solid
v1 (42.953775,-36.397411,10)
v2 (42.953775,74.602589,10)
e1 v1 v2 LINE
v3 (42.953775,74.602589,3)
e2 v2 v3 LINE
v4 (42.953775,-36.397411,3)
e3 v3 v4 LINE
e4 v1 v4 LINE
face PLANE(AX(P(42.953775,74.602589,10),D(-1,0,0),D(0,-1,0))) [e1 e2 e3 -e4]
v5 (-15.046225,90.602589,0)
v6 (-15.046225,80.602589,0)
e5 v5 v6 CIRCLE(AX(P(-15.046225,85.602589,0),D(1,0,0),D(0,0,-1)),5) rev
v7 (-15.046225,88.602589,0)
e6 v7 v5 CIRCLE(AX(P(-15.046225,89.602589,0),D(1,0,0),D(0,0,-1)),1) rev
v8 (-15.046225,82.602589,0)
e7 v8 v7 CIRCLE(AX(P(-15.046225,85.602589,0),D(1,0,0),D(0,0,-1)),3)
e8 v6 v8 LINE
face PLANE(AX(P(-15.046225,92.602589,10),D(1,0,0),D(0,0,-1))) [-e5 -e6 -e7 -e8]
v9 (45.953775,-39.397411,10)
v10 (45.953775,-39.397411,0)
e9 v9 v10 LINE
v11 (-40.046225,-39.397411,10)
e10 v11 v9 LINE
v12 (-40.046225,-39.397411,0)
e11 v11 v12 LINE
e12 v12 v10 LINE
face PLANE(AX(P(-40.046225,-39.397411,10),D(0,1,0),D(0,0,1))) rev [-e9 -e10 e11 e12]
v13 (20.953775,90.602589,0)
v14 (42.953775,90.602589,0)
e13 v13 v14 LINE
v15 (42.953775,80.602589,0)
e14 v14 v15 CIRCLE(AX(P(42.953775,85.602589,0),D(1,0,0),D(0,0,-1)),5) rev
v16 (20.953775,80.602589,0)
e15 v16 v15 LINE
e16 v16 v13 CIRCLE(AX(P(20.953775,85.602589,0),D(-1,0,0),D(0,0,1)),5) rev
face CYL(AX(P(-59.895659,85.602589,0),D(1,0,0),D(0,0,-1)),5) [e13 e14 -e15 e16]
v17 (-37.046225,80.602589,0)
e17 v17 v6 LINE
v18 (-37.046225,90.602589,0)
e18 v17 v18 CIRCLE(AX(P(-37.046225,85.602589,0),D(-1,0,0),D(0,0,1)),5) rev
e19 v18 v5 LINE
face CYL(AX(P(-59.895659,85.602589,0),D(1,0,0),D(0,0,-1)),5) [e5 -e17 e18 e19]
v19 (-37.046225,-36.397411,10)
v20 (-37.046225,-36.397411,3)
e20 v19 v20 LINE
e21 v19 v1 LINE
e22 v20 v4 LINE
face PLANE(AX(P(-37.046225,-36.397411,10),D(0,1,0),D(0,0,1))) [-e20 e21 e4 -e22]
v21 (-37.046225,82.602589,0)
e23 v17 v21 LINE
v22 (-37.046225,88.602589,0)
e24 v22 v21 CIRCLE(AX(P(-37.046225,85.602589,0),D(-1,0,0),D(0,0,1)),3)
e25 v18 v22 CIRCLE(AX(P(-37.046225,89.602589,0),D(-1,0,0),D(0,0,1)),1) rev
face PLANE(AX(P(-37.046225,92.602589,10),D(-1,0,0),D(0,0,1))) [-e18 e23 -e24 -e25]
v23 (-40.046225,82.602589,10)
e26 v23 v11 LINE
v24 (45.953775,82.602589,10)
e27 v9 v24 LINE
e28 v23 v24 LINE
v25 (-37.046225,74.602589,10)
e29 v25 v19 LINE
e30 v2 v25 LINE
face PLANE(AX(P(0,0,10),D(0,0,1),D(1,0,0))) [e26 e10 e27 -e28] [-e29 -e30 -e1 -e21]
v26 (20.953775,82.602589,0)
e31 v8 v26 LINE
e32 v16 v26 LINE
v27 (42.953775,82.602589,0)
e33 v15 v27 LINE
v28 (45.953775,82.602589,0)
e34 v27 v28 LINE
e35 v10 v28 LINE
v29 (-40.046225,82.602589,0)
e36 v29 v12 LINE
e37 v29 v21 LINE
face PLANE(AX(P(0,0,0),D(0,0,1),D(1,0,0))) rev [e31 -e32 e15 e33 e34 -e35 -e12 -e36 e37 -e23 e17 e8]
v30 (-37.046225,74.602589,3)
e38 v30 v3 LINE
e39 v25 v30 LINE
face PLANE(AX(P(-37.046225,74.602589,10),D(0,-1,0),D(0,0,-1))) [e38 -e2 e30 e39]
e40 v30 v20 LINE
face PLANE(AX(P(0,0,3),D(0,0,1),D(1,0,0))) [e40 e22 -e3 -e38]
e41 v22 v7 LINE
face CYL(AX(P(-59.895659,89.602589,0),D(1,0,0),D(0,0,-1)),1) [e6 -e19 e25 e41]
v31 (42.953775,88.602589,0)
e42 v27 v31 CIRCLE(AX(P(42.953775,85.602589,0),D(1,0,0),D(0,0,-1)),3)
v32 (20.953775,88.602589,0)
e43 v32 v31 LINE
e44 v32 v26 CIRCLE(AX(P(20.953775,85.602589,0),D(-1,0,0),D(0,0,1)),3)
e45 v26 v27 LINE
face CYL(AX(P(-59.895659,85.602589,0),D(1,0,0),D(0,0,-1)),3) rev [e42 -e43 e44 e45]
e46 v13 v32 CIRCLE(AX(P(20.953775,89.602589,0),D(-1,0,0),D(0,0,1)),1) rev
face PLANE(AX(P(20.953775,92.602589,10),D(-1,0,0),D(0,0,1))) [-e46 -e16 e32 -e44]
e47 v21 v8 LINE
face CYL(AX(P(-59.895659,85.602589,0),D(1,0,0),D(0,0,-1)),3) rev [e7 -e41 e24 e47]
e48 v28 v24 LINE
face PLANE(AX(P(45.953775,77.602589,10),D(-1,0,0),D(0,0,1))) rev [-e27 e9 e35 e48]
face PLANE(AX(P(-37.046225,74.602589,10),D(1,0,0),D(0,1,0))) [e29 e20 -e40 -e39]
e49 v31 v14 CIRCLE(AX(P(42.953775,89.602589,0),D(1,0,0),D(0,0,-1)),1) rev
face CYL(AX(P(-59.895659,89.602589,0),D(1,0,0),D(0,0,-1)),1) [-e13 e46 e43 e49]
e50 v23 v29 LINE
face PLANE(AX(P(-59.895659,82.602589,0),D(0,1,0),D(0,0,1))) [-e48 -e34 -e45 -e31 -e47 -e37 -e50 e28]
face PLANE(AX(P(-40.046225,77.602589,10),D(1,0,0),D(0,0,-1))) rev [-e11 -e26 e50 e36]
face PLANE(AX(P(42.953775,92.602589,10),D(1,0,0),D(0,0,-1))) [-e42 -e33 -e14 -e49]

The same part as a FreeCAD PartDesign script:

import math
import FreeCAD as App
import Part
import Sketcher
Q = App.Units.Quantity

doc = App.newDocument("Part")
body = doc.addObject("PartDesign::Body", "Body")

# Sketch on XY plane
sketch1 = body.newObject("Sketcher::SketchObject", "Sketch")
sketch1.AttachmentSupport = (doc.getObject("XY_Plane"), [""])
sketch1.MapMode = "FlatFace"
sketch1.addGeometry(Part.LineSegment(App.Vector(-40.046225, 77.602589, 0), App.Vector(-40.046225, -39.397411, 0)), False)
sketch1.addGeometry(Part.LineSegment(App.Vector(-40.046225, -39.397411, 0), App.Vector(45.953775, -39.397411, 0)), False)
sketch1.addGeometry(Part.LineSegment(App.Vector(45.953775, -39.397411, 0), App.Vector(45.953775, 77.602589, 0)), False)
sketch1.addGeometry(Part.LineSegment(App.Vector(45.953775, 77.602589, 0), App.Vector(-40.046225, 77.602589, 0)), False)
sketch1.addGeometry(Part.LineSegment(App.Vector(42.953775, -36.397411, 0), App.Vector(-37.046225, -36.397411, 0)), False)
sketch1.addGeometry(Part.LineSegment(App.Vector(-37.046225, -36.397411, 0), App.Vector(-37.046225, 74.602589, 0)), False)
sketch1.addGeometry(Part.LineSegment(App.Vector(-37.046225, 74.602589, 0), App.Vector(42.953775, 74.602589, 0)), False)
sketch1.addGeometry(Part.LineSegment(App.Vector(42.953775, 74.602589, 0), App.Vector(42.953775, -36.397411, 0)), False)
sketch1.addConstraint(Sketcher.Constraint("Coincident", 0, 2, 1, 1))
sketch1.addConstraint(Sketcher.Constraint("Coincident", 1, 2, 2, 1))
sketch1.addConstraint(Sketcher.Constraint("Coincident", 2, 2, 3, 1))
sketch1.addConstraint(Sketcher.Constraint("Coincident", 3, 2, 0, 1))
sketch1.addConstraint(Sketcher.Constraint("Coincident", 4, 2, 5, 1))
sketch1.addConstraint(Sketcher.Constraint("Coincident", 5, 2, 6, 1))
sketch1.addConstraint(Sketcher.Constraint("Coincident", 6, 2, 7, 1))
sketch1.addConstraint(Sketcher.Constraint("Coincident", 7, 2, 4, 1))
sketch1.addConstraint(Sketcher.Constraint("Vertical", 0))
sketch1.addConstraint(Sketcher.Constraint("Horizontal", 1))
sketch1.addConstraint(Sketcher.Constraint("Vertical", 2))
sketch1.addConstraint(Sketcher.Constraint("Horizontal", 3))
sketch1.addConstraint(Sketcher.Constraint("Horizontal", 4))
sketch1.addConstraint(Sketcher.Constraint("Vertical", 5))
sketch1.addConstraint(Sketcher.Constraint("Horizontal", 6))
sketch1.addConstraint(Sketcher.Constraint("Vertical", 7))
sketch1.addConstraint(Sketcher.Constraint("DistanceX", 1, 1, 1, 2, Q("86 mm")))
sketch1.addConstraint(Sketcher.Constraint("DistanceX", 4, 2, 4, 1, Q("80 mm")))
sketch1.addConstraint(Sketcher.Constraint("DistanceY", 0, 2, 0, 1, Q("117 mm")))
sketch1.addConstraint(Sketcher.Constraint("DistanceY", 5, 1, 5, 2, Q("111 mm")))
sketch1.addConstraint(Sketcher.Constraint("DistanceX", 0, 2, 4, 2, Q("3 mm")))
sketch1.addConstraint(Sketcher.Constraint("DistanceY", 0, 2, 4, 2, Q("3 mm")))
sketch1.addConstraint(Sketcher.Constraint("DistanceY", 0, 2, -1, 1, Q("39.397411 mm")))
sketch1.addConstraint(Sketcher.Constraint("DistanceX", 0, 2, -1, 1, Q("40.046225 mm")))
pad1 = body.newObject("PartDesign::Pad", "Pad")
pad1.Profile = sketch1
pad1.Length = 10

# Sketch on XY plane
sketch2 = body.newObject("Sketcher::SketchObject", "Sketch001")
sketch2.AttachmentSupport = (doc.getObject("XY_Plane"), [""])
sketch2.MapMode = "FlatFace"
sketch2.addGeometry(Part.LineSegment(App.Vector(-37.046225, 74.602589, 0), App.Vector(-37.046225, -36.397411, 0)), False)
sketch2.addGeometry(Part.LineSegment(App.Vector(-37.046225, -36.397411, 0), App.Vector(42.953775, -36.397411, 0)), False)
sketch2.addGeometry(Part.LineSegment(App.Vector(42.953775, -36.397411, 0), App.Vector(42.953775, 74.602589, 0)), False)
sketch2.addGeometry(Part.LineSegment(App.Vector(42.953775, 74.602589, 0), App.Vector(-37.046225, 74.602589, 0)), False)
sketch2.addConstraint(Sketcher.Constraint("Coincident", 0, 2, 1, 1))
sketch2.addConstraint(Sketcher.Constraint("Coincident", 1, 2, 2, 1))
sketch2.addConstraint(Sketcher.Constraint("Coincident", 2, 2, 3, 1))
sketch2.addConstraint(Sketcher.Constraint("Coincident", 3, 2, 0, 1))
sketch2.addConstraint(Sketcher.Constraint("Vertical", 0))
sketch2.addConstraint(Sketcher.Constraint("Horizontal", 1))
sketch2.addConstraint(Sketcher.Constraint("Vertical", 2))
sketch2.addConstraint(Sketcher.Constraint("Horizontal", 3))
sketch2.addConstraint(Sketcher.Constraint("DistanceX", 1, 1, 1, 2, Q("80 mm")))
sketch2.addConstraint(Sketcher.Constraint("DistanceY", 0, 2, 0, 1, Q("111 mm")))
sketch2.addConstraint(Sketcher.Constraint("DistanceY", 0, 2, -1, 1, Q("36.397411 mm")))
sketch2.addConstraint(Sketcher.Constraint("DistanceX", 0, 2, -1, 1, Q("37.046225 mm")))
pad2 = body.newObject("PartDesign::Pad", "Pad001")
pad2.Profile = sketch2
pad2.Length = 3

# Sketch on YZ plane
sketch3 = body.newObject("Sketcher::SketchObject", "Sketch002")
sketch3.AttachmentSupport = (doc.getObject("YZ_Plane"), [""])
sketch3.MapMode = "FlatFace"
sketch3.AttachmentOffset = App.Placement(App.Vector(0, 0, 45.953775), App.Rotation())
sketch3.addGeometry(Part.LineSegment(App.Vector(77.602589, 10, 0), App.Vector(77.602589, 0, 0)), False)
sketch3.addGeometry(Part.LineSegment(App.Vector(77.602589, 0, 0), App.Vector(80.602589, 0, 0)), False)
sketch3.addGeometry(Part.ArcOfCircle(Part.Circle(App.Vector(85.602589, 0, 0), App.Vector(0, 0, 1), 5), math.radians(180), math.radians(360)), False)
sketch3.addGeometry(Part.ArcOfCircle(Part.Circle(App.Vector(89.602589, 0, 0), App.Vector(0, 0, 1), 1), math.radians(0), math.radians(180)), False)
sketch3.addGeometry(Part.ArcOfCircle(Part.Circle(App.Vector(85.602589, 0, 0), App.Vector(0, 0, 1), 3), math.radians(180), math.radians(360)), False)
sketch3.addGeometry(Part.LineSegment(App.Vector(82.602589, 0, 0), App.Vector(82.602589, 10, 0)), False)
sketch3.addGeometry(Part.LineSegment(App.Vector(82.602589, 10, 0), App.Vector(77.602589, 10, 0)), False)
sketch3.addConstraint(Sketcher.Constraint("Coincident", 0, 2, 1, 1))
sketch3.addConstraint(Sketcher.Constraint("Coincident", 1, 2, 2, 1))
sketch3.addConstraint(Sketcher.Constraint("Tangent", 2, 2, 3, 1))
sketch3.addConstraint(Sketcher.Constraint("Tangent", 3, 2, 4, 2))
sketch3.addConstraint(Sketcher.Constraint("Tangent", 4, 1, 5, 1))
sketch3.addConstraint(Sketcher.Constraint("Coincident", 5, 2, 6, 1))
sketch3.addConstraint(Sketcher.Constraint("Coincident", 6, 2, 0, 1))
sketch3.addConstraint(Sketcher.Constraint("Vertical", 0))
sketch3.addConstraint(Sketcher.Constraint("Horizontal", 1))
sketch3.addConstraint(Sketcher.Constraint("Vertical", 5))
sketch3.addConstraint(Sketcher.Constraint("Horizontal", 6))
sketch3.addConstraint(Sketcher.Constraint("Coincident", 4, 3, 2, 3))
sketch3.addConstraint(Sketcher.Constraint("PointOnObject", 2, 3, -1))
sketch3.addConstraint(Sketcher.Constraint("PointOnObject", 3, 3, -1))
sketch3.addConstraint(Sketcher.Constraint("PointOnObject", 0, 2, -1))
sketch3.addConstraint(Sketcher.Constraint("Radius", 2, Q("5 mm")))
sketch3.addConstraint(Sketcher.Constraint("Radius", 3, Q("1 mm")))
sketch3.addConstraint(Sketcher.Constraint("DistanceX", 1, 1, 1, 2, Q("3 mm")))
sketch3.addConstraint(Sketcher.Constraint("DistanceY", 0, 2, 0, 1, Q("10 mm")))
sketch3.addConstraint(Sketcher.Constraint("DistanceX", -1, 1, 2, 3, Q("85.602589 mm")))
pad3 = body.newObject("PartDesign::Pad", "Pad002")
pad3.Profile = sketch3
pad3.Length = 86
pad3.Reversed = True

# Sketch on XZ plane
sketch4 = body.newObject("Sketcher::SketchObject", "Sketch003")
sketch4.AttachmentSupport = (doc.getObject("XZ_Plane"), [""])
sketch4.MapMode = "FlatFace"
sketch4.AttachmentOffset = App.Placement(App.Vector(0, 0, -82.602589), App.Rotation())
sketch4.addGeometry(Part.LineSegment(App.Vector(-40.046225, -5, 0), App.Vector(-40.046225, 10, 0)), False)
sketch4.addGeometry(Part.LineSegment(App.Vector(-40.046225, 10, 0), App.Vector(-37.046225, 10, 0)), False)
sketch4.addGeometry(Part.LineSegment(App.Vector(-37.046225, 10, 0), App.Vector(-37.046225, -5, 0)), False)
sketch4.addGeometry(Part.LineSegment(App.Vector(-37.046225, -5, 0), App.Vector(-40.046225, -5, 0)), False)
sketch4.addGeometry(Part.LineSegment(App.Vector(-15.046225, -5, 0), App.Vector(-15.046225, 10, 0)), False)
sketch4.addGeometry(Part.LineSegment(App.Vector(-15.046225, 10, 0), App.Vector(20.953775, 10, 0)), False)
sketch4.addGeometry(Part.LineSegment(App.Vector(20.953775, 10, 0), App.Vector(20.953775, -5, 0)), False)
sketch4.addGeometry(Part.LineSegment(App.Vector(20.953775, -5, 0), App.Vector(-15.046225, -5, 0)), False)
sketch4.addGeometry(Part.LineSegment(App.Vector(42.953775, -5, 0), App.Vector(42.953775, 10, 0)), False)
sketch4.addGeometry(Part.LineSegment(App.Vector(42.953775, 10, 0), App.Vector(45.953775, 10, 0)), False)
sketch4.addGeometry(Part.LineSegment(App.Vector(45.953775, 10, 0), App.Vector(45.953775, -5, 0)), False)
sketch4.addGeometry(Part.LineSegment(App.Vector(45.953775, -5, 0), App.Vector(42.953775, -5, 0)), False)
sketch4.addConstraint(Sketcher.Constraint("Coincident", 0, 2, 1, 1))
sketch4.addConstraint(Sketcher.Constraint("Coincident", 1, 2, 2, 1))
sketch4.addConstraint(Sketcher.Constraint("Coincident", 2, 2, 3, 1))
sketch4.addConstraint(Sketcher.Constraint("Coincident", 3, 2, 0, 1))
sketch4.addConstraint(Sketcher.Constraint("Coincident", 4, 2, 5, 1))
sketch4.addConstraint(Sketcher.Constraint("Coincident", 5, 2, 6, 1))
sketch4.addConstraint(Sketcher.Constraint("Coincident", 6, 2, 7, 1))
sketch4.addConstraint(Sketcher.Constraint("Coincident", 7, 2, 4, 1))
sketch4.addConstraint(Sketcher.Constraint("Coincident", 8, 2, 9, 1))
sketch4.addConstraint(Sketcher.Constraint("Coincident", 9, 2, 10, 1))
sketch4.addConstraint(Sketcher.Constraint("Coincident", 10, 2, 11, 1))
sketch4.addConstraint(Sketcher.Constraint("Coincident", 11, 2, 8, 1))
sketch4.addConstraint(Sketcher.Constraint("Vertical", 0))
sketch4.addConstraint(Sketcher.Constraint("Horizontal", 1))
sketch4.addConstraint(Sketcher.Constraint("Vertical", 2))
sketch4.addConstraint(Sketcher.Constraint("Horizontal", 3))
sketch4.addConstraint(Sketcher.Constraint("Vertical", 4))
sketch4.addConstraint(Sketcher.Constraint("Horizontal", 5))
sketch4.addConstraint(Sketcher.Constraint("Vertical", 6))
sketch4.addConstraint(Sketcher.Constraint("Horizontal", 7))
sketch4.addConstraint(Sketcher.Constraint("Vertical", 8))
sketch4.addConstraint(Sketcher.Constraint("Horizontal", 9))
sketch4.addConstraint(Sketcher.Constraint("Vertical", 10))
sketch4.addConstraint(Sketcher.Constraint("Horizontal", 11))
sketch4.addConstraint(Sketcher.Constraint("Horizontal", 1, 2, 4, 2))
sketch4.addConstraint(Sketcher.Constraint("Horizontal", 3, 2, 6, 2))
sketch4.addConstraint(Sketcher.Constraint("Horizontal", 5, 2, 8, 2))
sketch4.addConstraint(Sketcher.Constraint("Horizontal", 7, 2, 10, 2))
sketch4.addConstraint(Sketcher.Constraint("Equal", 3, 9))
sketch4.addConstraint(Sketcher.Constraint("DistanceX", 1, 1, 1, 2, Q("3 mm")))
sketch4.addConstraint(Sketcher.Constraint("DistanceX", 5, 1, 5, 2, Q("36 mm")))
sketch4.addConstraint(Sketcher.Constraint("DistanceY", 0, 1, 0, 2, Q("15 mm")))
sketch4.addConstraint(Sketcher.Constraint("DistanceY", -1, 1, 0, 2, Q("10 mm")))
sketch4.addConstraint(Sketcher.Constraint("DistanceX", 1, 2, 4, 2, Q("22 mm")))
sketch4.addConstraint(Sketcher.Constraint("DistanceX", 5, 2, 8, 2, Q("22 mm")))
sketch4.addConstraint(Sketcher.Constraint("DistanceX", 0, 2, -1, 1, Q("40.046225 mm")))
pocket1 = body.newObject("PartDesign::Pocket", "Pocket")
pocket1.Profile = sketch4
pocket1.Length = 10

# Sketch on XZ plane
sketch5 = body.newObject("Sketcher::SketchObject", "Sketch004")
sketch5.AttachmentSupport = (doc.getObject("XZ_Plane"), [""])
sketch5.MapMode = "FlatFace"
sketch5.AttachmentOffset = App.Placement(App.Vector(0, 0, -82.602589), App.Rotation())
sketch5.addGeometry(Part.LineSegment(App.Vector(-40.046225, -5, 0), App.Vector(-40.046225, 0, 0)), False)
sketch5.addGeometry(Part.LineSegment(App.Vector(-40.046225, 0, 0), App.Vector(-37.046225, 0, 0)), False)
sketch5.addGeometry(Part.LineSegment(App.Vector(-37.046225, 0, 0), App.Vector(-37.046225, -5, 0)), False)
sketch5.addGeometry(Part.LineSegment(App.Vector(-37.046225, -5, 0), App.Vector(-40.046225, -5, 0)), False)
sketch5.addGeometry(Part.LineSegment(App.Vector(42.953775, -5, 0), App.Vector(42.953775, 0, 0)), False)
sketch5.addGeometry(Part.LineSegment(App.Vector(42.953775, 0, 0), App.Vector(45.953775, 0, 0)), False)
sketch5.addGeometry(Part.LineSegment(App.Vector(45.953775, 0, 0), App.Vector(45.953775, -5, 0)), False)
sketch5.addGeometry(Part.LineSegment(App.Vector(45.953775, -5, 0), App.Vector(42.953775, -5, 0)), False)
sketch5.addGeometry(Part.LineSegment(App.Vector(-15.046225, -5, 0), App.Vector(-15.046225, 0, 0)), False)
sketch5.addGeometry(Part.LineSegment(App.Vector(-15.046225, 0, 0), App.Vector(20.953775, 0, 0)), False)
sketch5.addGeometry(Part.LineSegment(App.Vector(20.953775, 0, 0), App.Vector(20.953775, -5, 0)), False)
sketch5.addGeometry(Part.LineSegment(App.Vector(20.953775, -5, 0), App.Vector(-15.046225, -5, 0)), False)
sketch5.addConstraint(Sketcher.Constraint("Coincident", 0, 2, 1, 1))
sketch5.addConstraint(Sketcher.Constraint("Coincident", 1, 2, 2, 1))
sketch5.addConstraint(Sketcher.Constraint("Coincident", 2, 2, 3, 1))
sketch5.addConstraint(Sketcher.Constraint("Coincident", 3, 2, 0, 1))
sketch5.addConstraint(Sketcher.Constraint("Coincident", 4, 2, 5, 1))
sketch5.addConstraint(Sketcher.Constraint("Coincident", 5, 2, 6, 1))
sketch5.addConstraint(Sketcher.Constraint("Coincident", 6, 2, 7, 1))
sketch5.addConstraint(Sketcher.Constraint("Coincident", 7, 2, 4, 1))
sketch5.addConstraint(Sketcher.Constraint("Coincident", 8, 2, 9, 1))
sketch5.addConstraint(Sketcher.Constraint("Coincident", 9, 2, 10, 1))
sketch5.addConstraint(Sketcher.Constraint("Coincident", 10, 2, 11, 1))
sketch5.addConstraint(Sketcher.Constraint("Coincident", 11, 2, 8, 1))
sketch5.addConstraint(Sketcher.Constraint("Vertical", 0))
sketch5.addConstraint(Sketcher.Constraint("Horizontal", 1))
sketch5.addConstraint(Sketcher.Constraint("Vertical", 2))
sketch5.addConstraint(Sketcher.Constraint("Horizontal", 3))
sketch5.addConstraint(Sketcher.Constraint("Vertical", 4))
sketch5.addConstraint(Sketcher.Constraint("Horizontal", 5))
sketch5.addConstraint(Sketcher.Constraint("Vertical", 6))
sketch5.addConstraint(Sketcher.Constraint("Horizontal", 7))
sketch5.addConstraint(Sketcher.Constraint("Vertical", 8))
sketch5.addConstraint(Sketcher.Constraint("Horizontal", 9))
sketch5.addConstraint(Sketcher.Constraint("Vertical", 10))
sketch5.addConstraint(Sketcher.Constraint("Horizontal", 11))
sketch5.addConstraint(Sketcher.Constraint("PointOnObject", 0, 2, -1))
sketch5.addConstraint(Sketcher.Constraint("PointOnObject", 4, 2, -1))
sketch5.addConstraint(Sketcher.Constraint("PointOnObject", 8, 2, -1))
sketch5.addConstraint(Sketcher.Constraint("Horizontal", 3, 2, 6, 2))
sketch5.addConstraint(Sketcher.Constraint("Horizontal", 7, 2, 10, 2))
sketch5.addConstraint(Sketcher.Constraint("Equal", 3, 5))
sketch5.addConstraint(Sketcher.Constraint("DistanceX", 1, 1, 1, 2, Q("3 mm")))
sketch5.addConstraint(Sketcher.Constraint("DistanceX", 9, 1, 9, 2, Q("36 mm")))
sketch5.addConstraint(Sketcher.Constraint("DistanceY", 0, 1, 0, 2, Q("5 mm")))
sketch5.addConstraint(Sketcher.Constraint("DistanceX", 1, 2, 4, 2, Q("80 mm")))
sketch5.addConstraint(Sketcher.Constraint("DistanceX", 1, 2, 8, 2, Q("22 mm")))
sketch5.addConstraint(Sketcher.Constraint("DistanceX", 0, 2, -1, 1, Q("40.046225 mm")))
pocket2 = body.newObject("PartDesign::Pocket", "Pocket001")
pocket2.Profile = sketch5
pocket2.Length = 2
pocket2.Reversed = True

doc.recompute()
